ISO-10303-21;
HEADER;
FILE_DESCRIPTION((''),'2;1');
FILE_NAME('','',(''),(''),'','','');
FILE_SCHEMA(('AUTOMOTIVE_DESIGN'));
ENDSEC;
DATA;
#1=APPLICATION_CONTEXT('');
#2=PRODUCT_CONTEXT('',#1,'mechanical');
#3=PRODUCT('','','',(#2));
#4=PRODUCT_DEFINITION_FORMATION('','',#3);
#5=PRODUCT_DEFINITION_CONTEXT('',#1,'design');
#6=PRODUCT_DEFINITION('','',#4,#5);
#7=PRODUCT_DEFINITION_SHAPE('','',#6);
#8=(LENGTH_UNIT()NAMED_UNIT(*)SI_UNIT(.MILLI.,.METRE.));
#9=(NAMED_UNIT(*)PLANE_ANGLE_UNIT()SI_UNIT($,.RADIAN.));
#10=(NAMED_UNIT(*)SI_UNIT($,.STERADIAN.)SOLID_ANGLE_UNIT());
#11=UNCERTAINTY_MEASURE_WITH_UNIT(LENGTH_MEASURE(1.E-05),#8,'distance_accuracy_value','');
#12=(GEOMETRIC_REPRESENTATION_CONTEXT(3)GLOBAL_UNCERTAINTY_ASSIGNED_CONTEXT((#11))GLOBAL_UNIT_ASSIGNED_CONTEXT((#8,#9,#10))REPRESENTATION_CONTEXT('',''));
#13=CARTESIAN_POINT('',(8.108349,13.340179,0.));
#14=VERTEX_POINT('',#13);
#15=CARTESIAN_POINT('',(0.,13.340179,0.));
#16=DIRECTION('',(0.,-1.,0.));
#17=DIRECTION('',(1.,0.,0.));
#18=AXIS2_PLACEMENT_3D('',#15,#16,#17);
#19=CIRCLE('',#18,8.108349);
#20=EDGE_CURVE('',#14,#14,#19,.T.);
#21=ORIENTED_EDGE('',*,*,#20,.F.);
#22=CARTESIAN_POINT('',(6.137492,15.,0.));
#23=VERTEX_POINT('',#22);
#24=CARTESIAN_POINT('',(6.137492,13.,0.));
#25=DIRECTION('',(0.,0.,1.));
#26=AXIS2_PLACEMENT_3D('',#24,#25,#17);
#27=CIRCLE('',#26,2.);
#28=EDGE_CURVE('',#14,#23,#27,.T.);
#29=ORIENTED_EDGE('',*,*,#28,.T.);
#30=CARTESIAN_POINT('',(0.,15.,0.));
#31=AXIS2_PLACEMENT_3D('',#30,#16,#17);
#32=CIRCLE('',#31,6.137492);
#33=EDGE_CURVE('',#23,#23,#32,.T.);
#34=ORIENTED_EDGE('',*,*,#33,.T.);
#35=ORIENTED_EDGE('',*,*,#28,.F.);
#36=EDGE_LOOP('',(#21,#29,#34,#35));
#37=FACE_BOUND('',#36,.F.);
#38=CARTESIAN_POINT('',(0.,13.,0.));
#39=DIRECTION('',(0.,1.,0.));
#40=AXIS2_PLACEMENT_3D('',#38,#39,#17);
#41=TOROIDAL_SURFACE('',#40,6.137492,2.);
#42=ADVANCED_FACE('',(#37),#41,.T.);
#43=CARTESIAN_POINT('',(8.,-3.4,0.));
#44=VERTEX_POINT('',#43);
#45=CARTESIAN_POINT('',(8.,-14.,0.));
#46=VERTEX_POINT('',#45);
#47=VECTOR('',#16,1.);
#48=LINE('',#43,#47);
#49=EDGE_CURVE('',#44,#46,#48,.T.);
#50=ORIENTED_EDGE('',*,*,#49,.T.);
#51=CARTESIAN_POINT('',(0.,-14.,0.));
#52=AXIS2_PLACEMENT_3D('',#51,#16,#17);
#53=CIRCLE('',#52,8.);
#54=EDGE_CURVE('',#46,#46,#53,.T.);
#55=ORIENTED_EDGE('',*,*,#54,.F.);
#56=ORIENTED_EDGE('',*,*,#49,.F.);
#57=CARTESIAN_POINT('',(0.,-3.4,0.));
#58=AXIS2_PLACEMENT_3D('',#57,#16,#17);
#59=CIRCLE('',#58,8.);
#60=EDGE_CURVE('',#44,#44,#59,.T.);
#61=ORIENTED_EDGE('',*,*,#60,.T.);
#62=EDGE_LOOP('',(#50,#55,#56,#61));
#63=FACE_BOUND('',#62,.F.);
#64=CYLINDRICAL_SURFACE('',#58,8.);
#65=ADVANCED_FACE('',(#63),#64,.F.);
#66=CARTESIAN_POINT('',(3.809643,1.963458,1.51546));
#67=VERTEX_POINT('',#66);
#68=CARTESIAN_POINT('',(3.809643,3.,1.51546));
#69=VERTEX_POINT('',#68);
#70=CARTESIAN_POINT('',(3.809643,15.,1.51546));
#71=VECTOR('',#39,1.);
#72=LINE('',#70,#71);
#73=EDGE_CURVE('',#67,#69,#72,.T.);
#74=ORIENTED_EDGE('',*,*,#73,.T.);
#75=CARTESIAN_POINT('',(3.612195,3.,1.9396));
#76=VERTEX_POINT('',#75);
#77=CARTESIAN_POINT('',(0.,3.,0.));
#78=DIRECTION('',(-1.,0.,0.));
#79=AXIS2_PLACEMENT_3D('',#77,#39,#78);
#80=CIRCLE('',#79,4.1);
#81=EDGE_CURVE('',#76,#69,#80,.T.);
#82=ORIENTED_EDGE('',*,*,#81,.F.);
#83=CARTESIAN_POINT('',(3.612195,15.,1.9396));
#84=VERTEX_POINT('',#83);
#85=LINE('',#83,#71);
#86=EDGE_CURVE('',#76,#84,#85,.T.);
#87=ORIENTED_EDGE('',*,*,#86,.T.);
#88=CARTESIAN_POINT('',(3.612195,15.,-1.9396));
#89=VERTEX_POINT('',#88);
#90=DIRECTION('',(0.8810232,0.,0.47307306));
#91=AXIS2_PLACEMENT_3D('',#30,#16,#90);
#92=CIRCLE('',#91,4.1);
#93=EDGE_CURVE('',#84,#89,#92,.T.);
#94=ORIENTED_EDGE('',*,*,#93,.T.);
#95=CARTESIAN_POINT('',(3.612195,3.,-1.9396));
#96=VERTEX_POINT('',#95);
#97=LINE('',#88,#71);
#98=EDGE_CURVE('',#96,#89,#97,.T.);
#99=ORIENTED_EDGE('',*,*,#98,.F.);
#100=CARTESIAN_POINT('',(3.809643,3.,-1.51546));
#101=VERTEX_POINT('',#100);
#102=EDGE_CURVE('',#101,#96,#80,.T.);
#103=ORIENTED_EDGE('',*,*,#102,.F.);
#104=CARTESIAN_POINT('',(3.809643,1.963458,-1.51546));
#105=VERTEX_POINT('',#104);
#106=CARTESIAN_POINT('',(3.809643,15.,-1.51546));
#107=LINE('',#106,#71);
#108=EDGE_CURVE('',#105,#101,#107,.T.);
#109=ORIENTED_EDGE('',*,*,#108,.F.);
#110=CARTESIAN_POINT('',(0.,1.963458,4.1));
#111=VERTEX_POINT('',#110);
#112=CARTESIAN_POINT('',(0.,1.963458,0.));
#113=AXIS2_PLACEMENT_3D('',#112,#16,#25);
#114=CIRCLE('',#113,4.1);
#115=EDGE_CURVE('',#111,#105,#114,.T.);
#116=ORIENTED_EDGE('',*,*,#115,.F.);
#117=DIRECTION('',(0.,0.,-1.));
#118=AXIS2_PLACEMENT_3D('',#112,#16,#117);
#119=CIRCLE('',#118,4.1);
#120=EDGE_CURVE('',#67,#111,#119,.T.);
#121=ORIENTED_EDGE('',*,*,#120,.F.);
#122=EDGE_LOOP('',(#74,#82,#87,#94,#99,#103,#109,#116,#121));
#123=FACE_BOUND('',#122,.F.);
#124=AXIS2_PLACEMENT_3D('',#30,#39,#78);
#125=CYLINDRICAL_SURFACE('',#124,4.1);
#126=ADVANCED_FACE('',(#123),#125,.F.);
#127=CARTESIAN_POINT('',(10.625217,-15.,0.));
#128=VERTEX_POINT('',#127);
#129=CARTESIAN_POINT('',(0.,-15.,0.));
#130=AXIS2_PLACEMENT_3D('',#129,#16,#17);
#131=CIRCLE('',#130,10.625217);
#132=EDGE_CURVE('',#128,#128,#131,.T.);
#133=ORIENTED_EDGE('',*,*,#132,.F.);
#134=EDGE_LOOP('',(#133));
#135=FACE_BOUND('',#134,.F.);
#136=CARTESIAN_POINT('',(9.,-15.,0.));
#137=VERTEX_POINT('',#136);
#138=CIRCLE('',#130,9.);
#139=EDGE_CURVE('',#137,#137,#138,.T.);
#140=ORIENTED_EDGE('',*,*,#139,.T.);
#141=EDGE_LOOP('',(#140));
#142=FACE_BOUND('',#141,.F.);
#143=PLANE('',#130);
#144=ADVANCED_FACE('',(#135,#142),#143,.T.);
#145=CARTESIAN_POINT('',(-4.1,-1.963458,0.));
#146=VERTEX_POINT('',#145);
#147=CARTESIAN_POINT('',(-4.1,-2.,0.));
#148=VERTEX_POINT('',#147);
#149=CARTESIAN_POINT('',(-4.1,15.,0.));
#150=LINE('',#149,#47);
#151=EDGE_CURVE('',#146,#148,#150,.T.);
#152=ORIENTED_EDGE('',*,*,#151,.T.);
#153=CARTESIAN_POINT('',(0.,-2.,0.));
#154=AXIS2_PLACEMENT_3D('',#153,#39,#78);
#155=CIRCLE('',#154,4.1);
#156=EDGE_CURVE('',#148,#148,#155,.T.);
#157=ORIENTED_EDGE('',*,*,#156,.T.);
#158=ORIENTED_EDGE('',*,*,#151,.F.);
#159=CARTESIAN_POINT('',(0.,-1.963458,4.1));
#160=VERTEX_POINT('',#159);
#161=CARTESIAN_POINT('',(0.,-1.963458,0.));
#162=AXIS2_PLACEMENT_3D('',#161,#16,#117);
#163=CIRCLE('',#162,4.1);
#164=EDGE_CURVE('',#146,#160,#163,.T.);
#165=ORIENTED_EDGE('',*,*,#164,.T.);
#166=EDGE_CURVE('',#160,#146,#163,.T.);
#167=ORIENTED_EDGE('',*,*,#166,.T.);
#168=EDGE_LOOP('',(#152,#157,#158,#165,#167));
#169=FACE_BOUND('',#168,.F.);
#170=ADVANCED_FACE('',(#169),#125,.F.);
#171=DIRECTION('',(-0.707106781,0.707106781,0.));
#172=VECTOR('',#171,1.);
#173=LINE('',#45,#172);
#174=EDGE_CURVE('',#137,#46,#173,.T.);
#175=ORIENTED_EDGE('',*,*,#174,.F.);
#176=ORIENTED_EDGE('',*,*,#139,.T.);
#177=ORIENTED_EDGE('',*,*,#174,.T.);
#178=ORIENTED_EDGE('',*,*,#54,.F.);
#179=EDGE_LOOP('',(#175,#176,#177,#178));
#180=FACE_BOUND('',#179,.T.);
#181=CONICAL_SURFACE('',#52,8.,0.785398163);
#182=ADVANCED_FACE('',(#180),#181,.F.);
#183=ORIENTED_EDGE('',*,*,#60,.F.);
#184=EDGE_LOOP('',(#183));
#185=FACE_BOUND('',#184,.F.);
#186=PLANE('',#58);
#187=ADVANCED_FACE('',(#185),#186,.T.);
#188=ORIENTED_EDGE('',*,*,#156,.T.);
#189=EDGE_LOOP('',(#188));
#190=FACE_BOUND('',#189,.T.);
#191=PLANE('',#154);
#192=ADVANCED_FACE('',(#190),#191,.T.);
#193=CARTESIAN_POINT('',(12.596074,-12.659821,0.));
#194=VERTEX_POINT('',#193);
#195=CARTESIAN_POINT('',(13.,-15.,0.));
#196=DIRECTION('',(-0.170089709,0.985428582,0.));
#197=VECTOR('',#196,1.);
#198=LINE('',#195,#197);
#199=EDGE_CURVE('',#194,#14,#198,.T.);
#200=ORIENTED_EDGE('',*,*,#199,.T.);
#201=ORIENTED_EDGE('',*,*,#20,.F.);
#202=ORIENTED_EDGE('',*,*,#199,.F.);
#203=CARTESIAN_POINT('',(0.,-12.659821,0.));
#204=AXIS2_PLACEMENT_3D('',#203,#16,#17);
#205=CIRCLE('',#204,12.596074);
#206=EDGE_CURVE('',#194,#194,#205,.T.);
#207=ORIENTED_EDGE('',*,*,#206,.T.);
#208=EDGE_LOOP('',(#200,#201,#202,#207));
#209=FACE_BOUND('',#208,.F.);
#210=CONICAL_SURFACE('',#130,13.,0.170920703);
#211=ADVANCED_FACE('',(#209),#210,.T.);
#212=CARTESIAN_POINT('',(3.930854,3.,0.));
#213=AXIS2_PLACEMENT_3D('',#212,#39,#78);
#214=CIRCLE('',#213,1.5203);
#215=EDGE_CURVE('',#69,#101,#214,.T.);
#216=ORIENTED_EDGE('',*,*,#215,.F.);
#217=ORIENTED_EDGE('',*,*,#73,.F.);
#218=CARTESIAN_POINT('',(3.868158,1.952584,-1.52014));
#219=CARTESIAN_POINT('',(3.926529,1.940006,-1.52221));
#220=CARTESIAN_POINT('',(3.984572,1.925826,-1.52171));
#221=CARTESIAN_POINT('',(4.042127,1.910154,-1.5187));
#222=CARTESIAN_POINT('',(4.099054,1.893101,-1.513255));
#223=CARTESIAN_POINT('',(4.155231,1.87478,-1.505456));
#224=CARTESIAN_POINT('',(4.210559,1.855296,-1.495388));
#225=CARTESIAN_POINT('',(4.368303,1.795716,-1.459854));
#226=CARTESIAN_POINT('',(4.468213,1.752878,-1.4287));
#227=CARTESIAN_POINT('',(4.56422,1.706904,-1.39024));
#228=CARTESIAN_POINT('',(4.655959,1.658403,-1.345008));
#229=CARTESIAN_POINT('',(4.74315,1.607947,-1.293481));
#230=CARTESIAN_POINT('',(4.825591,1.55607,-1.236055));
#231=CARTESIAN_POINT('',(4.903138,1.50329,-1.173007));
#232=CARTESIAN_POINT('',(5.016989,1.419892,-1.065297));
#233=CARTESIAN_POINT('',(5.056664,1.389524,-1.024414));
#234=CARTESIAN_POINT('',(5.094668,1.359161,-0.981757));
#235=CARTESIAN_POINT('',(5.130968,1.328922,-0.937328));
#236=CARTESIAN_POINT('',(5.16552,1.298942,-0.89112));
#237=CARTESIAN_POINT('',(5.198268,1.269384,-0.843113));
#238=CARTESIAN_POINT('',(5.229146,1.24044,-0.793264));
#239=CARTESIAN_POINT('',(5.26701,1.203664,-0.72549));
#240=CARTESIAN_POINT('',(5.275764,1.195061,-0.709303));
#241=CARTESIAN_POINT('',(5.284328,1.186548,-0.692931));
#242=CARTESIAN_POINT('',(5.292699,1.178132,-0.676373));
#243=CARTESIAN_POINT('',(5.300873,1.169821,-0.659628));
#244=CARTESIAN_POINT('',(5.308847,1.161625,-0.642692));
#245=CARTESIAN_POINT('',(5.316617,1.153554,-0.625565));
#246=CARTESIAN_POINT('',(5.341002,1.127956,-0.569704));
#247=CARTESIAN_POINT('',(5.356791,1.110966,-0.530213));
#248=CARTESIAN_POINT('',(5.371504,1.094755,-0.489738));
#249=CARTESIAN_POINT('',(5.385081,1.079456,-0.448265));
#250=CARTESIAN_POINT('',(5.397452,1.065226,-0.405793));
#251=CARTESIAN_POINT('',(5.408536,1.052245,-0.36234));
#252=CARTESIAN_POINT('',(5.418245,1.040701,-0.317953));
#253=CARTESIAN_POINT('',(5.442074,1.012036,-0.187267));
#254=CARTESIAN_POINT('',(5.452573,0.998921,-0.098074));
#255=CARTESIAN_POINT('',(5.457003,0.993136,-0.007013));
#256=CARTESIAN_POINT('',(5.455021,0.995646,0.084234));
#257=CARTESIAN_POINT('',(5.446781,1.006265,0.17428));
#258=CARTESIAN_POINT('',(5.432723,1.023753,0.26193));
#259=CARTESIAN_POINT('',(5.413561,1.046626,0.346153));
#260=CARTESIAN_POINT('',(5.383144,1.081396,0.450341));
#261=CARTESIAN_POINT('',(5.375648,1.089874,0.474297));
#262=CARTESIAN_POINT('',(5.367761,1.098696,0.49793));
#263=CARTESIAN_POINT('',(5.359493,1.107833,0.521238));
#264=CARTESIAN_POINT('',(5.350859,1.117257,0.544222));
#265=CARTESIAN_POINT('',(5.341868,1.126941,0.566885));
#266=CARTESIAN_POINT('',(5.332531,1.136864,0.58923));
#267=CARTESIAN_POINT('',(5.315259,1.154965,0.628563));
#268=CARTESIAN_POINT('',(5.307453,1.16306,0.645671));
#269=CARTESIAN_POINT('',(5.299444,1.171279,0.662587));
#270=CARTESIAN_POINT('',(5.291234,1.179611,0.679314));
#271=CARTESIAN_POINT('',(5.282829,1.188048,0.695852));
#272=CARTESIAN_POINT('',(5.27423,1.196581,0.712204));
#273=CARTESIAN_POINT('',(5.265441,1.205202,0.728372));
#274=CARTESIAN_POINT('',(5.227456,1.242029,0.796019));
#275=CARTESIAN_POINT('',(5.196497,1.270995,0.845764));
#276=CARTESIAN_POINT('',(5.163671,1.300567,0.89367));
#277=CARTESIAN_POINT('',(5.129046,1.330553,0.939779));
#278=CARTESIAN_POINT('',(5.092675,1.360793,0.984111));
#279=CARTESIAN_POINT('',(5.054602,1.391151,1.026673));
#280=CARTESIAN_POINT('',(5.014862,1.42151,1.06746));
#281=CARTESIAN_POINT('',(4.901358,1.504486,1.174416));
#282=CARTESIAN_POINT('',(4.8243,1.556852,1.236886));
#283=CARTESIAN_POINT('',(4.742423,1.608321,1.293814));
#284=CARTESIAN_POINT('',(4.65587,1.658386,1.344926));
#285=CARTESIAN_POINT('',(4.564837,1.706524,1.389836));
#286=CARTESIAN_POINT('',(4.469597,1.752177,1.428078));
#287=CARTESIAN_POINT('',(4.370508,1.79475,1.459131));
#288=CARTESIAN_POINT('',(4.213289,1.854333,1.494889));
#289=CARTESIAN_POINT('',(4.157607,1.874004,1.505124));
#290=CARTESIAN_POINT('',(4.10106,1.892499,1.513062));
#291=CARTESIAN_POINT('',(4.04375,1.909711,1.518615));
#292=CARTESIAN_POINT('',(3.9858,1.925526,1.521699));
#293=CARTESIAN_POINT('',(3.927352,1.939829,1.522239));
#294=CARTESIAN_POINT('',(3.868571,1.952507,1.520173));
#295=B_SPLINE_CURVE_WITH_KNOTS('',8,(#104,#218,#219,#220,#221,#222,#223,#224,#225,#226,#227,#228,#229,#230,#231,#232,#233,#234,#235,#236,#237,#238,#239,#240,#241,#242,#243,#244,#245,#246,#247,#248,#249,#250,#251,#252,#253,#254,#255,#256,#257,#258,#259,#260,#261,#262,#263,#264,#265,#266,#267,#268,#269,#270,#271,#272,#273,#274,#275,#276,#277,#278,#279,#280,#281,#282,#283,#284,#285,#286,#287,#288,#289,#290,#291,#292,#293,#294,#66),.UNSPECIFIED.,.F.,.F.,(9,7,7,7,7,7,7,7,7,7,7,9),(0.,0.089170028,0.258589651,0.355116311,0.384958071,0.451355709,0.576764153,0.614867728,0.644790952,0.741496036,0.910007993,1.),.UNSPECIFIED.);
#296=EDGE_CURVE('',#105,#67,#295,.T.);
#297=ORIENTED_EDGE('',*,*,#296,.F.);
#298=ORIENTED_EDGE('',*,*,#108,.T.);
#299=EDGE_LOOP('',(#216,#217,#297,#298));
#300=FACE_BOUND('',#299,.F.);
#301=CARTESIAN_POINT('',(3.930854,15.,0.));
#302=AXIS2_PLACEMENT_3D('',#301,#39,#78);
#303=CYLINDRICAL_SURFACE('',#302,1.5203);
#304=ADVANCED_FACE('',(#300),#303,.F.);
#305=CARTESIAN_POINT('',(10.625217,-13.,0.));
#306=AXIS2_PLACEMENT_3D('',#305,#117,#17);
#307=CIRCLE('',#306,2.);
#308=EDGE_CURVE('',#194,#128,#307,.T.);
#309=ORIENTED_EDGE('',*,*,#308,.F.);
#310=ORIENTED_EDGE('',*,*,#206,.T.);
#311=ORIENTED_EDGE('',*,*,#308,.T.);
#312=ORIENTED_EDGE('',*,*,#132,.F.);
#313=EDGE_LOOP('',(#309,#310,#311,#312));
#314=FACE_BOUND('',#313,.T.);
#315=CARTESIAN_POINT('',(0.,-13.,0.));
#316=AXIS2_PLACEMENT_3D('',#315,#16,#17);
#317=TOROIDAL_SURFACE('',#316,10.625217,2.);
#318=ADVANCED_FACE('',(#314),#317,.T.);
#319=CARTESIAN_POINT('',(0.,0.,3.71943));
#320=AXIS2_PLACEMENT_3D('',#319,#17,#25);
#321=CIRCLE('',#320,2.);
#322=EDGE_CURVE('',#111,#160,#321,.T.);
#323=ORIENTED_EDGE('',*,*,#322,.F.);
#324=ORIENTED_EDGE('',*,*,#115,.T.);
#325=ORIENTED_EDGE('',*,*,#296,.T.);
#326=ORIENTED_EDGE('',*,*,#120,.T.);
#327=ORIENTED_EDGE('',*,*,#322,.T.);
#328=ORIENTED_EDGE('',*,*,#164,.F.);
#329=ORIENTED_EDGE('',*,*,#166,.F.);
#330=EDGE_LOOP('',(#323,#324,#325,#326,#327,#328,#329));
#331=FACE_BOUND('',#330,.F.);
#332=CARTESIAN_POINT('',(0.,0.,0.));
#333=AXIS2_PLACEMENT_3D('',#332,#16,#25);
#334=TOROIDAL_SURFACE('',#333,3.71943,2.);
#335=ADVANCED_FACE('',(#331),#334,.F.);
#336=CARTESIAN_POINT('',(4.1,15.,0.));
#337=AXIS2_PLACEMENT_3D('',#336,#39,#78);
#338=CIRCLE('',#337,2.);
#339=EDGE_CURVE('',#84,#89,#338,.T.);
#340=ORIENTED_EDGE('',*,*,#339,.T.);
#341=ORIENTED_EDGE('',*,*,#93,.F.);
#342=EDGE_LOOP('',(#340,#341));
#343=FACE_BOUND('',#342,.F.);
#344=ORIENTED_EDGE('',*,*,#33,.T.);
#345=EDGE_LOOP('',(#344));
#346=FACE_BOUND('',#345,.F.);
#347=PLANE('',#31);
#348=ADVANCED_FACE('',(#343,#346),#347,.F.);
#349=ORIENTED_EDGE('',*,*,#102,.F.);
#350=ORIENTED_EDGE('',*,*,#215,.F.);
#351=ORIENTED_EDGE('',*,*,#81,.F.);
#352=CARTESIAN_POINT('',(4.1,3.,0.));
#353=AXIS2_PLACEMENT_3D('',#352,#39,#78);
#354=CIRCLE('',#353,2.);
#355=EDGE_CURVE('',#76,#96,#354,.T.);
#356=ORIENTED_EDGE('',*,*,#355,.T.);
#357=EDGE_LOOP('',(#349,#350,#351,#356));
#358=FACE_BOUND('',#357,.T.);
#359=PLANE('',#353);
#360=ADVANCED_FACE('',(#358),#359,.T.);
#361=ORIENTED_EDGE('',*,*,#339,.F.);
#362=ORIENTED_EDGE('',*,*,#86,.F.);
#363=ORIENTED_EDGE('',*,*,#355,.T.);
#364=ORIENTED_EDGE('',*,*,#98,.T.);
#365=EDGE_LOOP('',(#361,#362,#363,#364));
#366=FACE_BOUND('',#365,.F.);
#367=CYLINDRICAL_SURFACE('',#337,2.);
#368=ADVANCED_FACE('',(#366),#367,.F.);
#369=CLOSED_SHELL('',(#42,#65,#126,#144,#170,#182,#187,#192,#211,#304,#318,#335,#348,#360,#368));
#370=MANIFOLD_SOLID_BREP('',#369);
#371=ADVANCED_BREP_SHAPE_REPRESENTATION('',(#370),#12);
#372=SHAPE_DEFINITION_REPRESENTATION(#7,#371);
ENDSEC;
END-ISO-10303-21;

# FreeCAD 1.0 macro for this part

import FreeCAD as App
import Part
import Sketcher


def edges_at(feature, points):
    """Names of the edges that pass closest to the given points."""
    edges = feature.Shape.Edges
    near = lambda p: min(range(len(edges)), key=lambda i: edges[i].distToShape(Part.Vertex(*p))[0])
    return sorted({f"Edge{near(p) + 1}" for p in points})


def add_polygon(sketch, points):
    """Adds a closed chain of lines whose ends are joined by coincident constraints."""
    first, n = sketch.GeometryCount, len(points)
    for a, b in zip(points, points[1:] + points[:1]):
        sketch.addGeometry(Part.LineSegment(App.Vector(*a, 0), App.Vector(*b, 0)), False)
    for i in range(n):
        sketch.addConstraint(Sketcher.Constraint("Coincident", first + i, 2, first + (i + 1) % n, 1))

doc = App.newDocument("Part")
body = doc.addObject("PartDesign::Body", "Body")

sketch1 = body.newObject("Sketcher::SketchObject", "Sketch")
sketch1.AttachmentSupport = (doc.getObject("XY_Plane"), [""])
sketch1.MapMode = "FlatFace"
add_polygon(sketch1, [(13, -15), (7.821856, 15), (0, 15), (0, -3.4), (8, -3.4), (8, -15)])
sketch1.addConstraint(Sketcher.Constraint("Horizontal", 1))
sketch1.addConstraint(Sketcher.Constraint("Vertical", 2))
sketch1.addConstraint(Sketcher.Constraint("Horizontal", 3))
sketch1.addConstraint(Sketcher.Constraint("Vertical", 4))
sketch1.addConstraint(Sketcher.Constraint("Horizontal", 5))
sketch1.addConstraint(Sketcher.Constraint("PointOnObject", 1, 2, -2))
sketch1.addConstraint(Sketcher.Constraint("DistanceX", 3, 1, 3, 2, 8.0))
sketch1.addConstraint(Sketcher.Constraint("DistanceX", 5, 1, 5, 2, 5.0))
sketch1.addConstraint(Sketcher.Constraint("DistanceY", 2, 2, 2, 1, 18.4))
sketch1.addConstraint(Sketcher.Constraint("DistanceY", 4, 2, 4, 1, 11.6))
sketch1.addConstraint(Sketcher.Constraint("DistanceY", -1, 1, 0, 2, 15.0))
sketch1.addConstraint(Sketcher.Constraint("DistanceX", 1, 2, 1, 1, 7.821856))
revolution = body.newObject("PartDesign::Revolution", "Revolution")
revolution.Profile = sketch1
revolution.ReferenceAxis = (sketch1, ["V_Axis"])
revolution.Angle = 360

sketch2 = body.newObject("Sketcher::SketchObject", "Sketch001")
sketch2.AttachmentSupport = (doc.getObject("XZ_Plane"), [""])
sketch2.MapMode = "FlatFace"
sketch2.AttachmentOffset = App.Placement(App.Vector(0, 0, -15), App.Rotation())
sketch2.addGeometry(Part.Circle(App.Vector(0, 0, 0), App.Vector(0, 0, 1), 4.1), False)
sketch2.addConstraint(Sketcher.Constraint("Coincident", 0, 3, -1, 1))
sketch2.addConstraint(Sketcher.Constraint("Diameter", 0, 8.2))
pocket1 = body.newObject("PartDesign::Pocket", "Pocket")
pocket1.Profile = sketch2
pocket1.Length = 17
pocket1.Reversed = True

sketch3 = body.newObject("Sketcher::SketchObject", "Sketch002")
sketch3.AttachmentSupport = (doc.getObject("YZ_Plane"), [""])
sketch3.MapMode = "FlatFace"
sketch3.addGeometry(Part.Circle(App.Vector(0, 3.71943, 0), App.Vector(0, 0, 1), 2), False)
sketch3.addConstraint(Sketcher.Constraint("PointOnObject", 0, 3, -2))
sketch3.addConstraint(Sketcher.Constraint("Diameter", 0, 4.0))
sketch3.addConstraint(Sketcher.Constraint("DistanceY", -1, 1, 0, 3, 3.71943))

sketch4 = body.newObject("Sketcher::SketchObject", "Sketch003")
sketch4.AttachmentSupport = (doc.getObject("XZ_Plane"), [""])
sketch4.MapMode = "FlatFace"
sketch4.AttachmentOffset = App.Placement(App.Vector(0, 0, 2), App.Rotation())
sketch4.addGeometry(Part.Circle(App.Vector(0, 0, 0), App.Vector(0, 0, 1), 4.1), False)
sketch4.addConstraint(Sketcher.Constraint("Coincident", 0, 3, -1, 1))
sketch4.addConstraint(Sketcher.Constraint("Diameter", 0, 8.2))
doc.recompute()

subtractivepipe = body.newObject("PartDesign::SubtractivePipe", "SubtractivePipe")
subtractivepipe.Profile = sketch3
subtractivepipe.Spine = (sketch4, ["Edge1"])

sketch5 = body.newObject("Sketcher::SketchObject", "Sketch004")
sketch5.AttachmentSupport = (doc.getObject("XZ_Plane"), [""])
sketch5.MapMode = "FlatFace"
sketch5.AttachmentOffset = App.Placement(App.Vector(0, 0, -15), App.Rotation())
sketch5.addGeometry(Part.Circle(App.Vector(4.1, 0, 0), App.Vector(0, 0, 1), 2), False)
sketch5.addConstraint(Sketcher.Constraint("PointOnObject", 0, 3, -1))
sketch5.addConstraint(Sketcher.Constraint("Diameter", 0, 4.0))
sketch5.addConstraint(Sketcher.Constraint("DistanceX", -1, 1, 0, 3, 4.1))
pocket2 = body.newObject("PartDesign::Pocket", "Pocket001")
pocket2.Profile = sketch5
pocket2.Length = 12
pocket2.Reversed = True
doc.recompute()

fillet = body.newObject("PartDesign::Fillet", "Fillet")
fillet.Base = (pocket2, edges_at(pocket2, [(-7.822, 15, 0), (-13, -15, 0)]))
fillet.Radius = 2
doc.recompute()

chamfer = body.newObject("PartDesign::Chamfer", "Chamfer")
chamfer.Base = (fillet, edges_at(fillet, [(-8, -15, 0)]))
chamfer.Size = 1

sketch6 = body.newObject("Sketcher::SketchObject", "Sketch005")
sketch6.AttachmentSupport = (doc.getObject("XZ_Plane"), [""])
sketch6.MapMode = "FlatFace"
sketch6.AttachmentOffset = App.Placement(App.Vector(0, 0, -15), App.Rotation())
sketch6.addGeometry(Part.Circle(App.Vector(3.930854, 0, 0), App.Vector(0, 0, 1), 1.5203), False)
sketch6.addConstraint(Sketcher.Constraint("PointOnObject", 0, 3, -1))
sketch6.addConstraint(Sketcher.Constraint("Diameter", 0, 3.0406))
sketch6.addConstraint(Sketcher.Constraint("DistanceX", -1, 1, 0, 3, 3.930854))
pocket3 = body.newObject("PartDesign::Pocket", "Pocket002")
pocket3.Profile = sketch6
pocket3.Length = 14
pocket3.Reversed = True

doc.recompute()
